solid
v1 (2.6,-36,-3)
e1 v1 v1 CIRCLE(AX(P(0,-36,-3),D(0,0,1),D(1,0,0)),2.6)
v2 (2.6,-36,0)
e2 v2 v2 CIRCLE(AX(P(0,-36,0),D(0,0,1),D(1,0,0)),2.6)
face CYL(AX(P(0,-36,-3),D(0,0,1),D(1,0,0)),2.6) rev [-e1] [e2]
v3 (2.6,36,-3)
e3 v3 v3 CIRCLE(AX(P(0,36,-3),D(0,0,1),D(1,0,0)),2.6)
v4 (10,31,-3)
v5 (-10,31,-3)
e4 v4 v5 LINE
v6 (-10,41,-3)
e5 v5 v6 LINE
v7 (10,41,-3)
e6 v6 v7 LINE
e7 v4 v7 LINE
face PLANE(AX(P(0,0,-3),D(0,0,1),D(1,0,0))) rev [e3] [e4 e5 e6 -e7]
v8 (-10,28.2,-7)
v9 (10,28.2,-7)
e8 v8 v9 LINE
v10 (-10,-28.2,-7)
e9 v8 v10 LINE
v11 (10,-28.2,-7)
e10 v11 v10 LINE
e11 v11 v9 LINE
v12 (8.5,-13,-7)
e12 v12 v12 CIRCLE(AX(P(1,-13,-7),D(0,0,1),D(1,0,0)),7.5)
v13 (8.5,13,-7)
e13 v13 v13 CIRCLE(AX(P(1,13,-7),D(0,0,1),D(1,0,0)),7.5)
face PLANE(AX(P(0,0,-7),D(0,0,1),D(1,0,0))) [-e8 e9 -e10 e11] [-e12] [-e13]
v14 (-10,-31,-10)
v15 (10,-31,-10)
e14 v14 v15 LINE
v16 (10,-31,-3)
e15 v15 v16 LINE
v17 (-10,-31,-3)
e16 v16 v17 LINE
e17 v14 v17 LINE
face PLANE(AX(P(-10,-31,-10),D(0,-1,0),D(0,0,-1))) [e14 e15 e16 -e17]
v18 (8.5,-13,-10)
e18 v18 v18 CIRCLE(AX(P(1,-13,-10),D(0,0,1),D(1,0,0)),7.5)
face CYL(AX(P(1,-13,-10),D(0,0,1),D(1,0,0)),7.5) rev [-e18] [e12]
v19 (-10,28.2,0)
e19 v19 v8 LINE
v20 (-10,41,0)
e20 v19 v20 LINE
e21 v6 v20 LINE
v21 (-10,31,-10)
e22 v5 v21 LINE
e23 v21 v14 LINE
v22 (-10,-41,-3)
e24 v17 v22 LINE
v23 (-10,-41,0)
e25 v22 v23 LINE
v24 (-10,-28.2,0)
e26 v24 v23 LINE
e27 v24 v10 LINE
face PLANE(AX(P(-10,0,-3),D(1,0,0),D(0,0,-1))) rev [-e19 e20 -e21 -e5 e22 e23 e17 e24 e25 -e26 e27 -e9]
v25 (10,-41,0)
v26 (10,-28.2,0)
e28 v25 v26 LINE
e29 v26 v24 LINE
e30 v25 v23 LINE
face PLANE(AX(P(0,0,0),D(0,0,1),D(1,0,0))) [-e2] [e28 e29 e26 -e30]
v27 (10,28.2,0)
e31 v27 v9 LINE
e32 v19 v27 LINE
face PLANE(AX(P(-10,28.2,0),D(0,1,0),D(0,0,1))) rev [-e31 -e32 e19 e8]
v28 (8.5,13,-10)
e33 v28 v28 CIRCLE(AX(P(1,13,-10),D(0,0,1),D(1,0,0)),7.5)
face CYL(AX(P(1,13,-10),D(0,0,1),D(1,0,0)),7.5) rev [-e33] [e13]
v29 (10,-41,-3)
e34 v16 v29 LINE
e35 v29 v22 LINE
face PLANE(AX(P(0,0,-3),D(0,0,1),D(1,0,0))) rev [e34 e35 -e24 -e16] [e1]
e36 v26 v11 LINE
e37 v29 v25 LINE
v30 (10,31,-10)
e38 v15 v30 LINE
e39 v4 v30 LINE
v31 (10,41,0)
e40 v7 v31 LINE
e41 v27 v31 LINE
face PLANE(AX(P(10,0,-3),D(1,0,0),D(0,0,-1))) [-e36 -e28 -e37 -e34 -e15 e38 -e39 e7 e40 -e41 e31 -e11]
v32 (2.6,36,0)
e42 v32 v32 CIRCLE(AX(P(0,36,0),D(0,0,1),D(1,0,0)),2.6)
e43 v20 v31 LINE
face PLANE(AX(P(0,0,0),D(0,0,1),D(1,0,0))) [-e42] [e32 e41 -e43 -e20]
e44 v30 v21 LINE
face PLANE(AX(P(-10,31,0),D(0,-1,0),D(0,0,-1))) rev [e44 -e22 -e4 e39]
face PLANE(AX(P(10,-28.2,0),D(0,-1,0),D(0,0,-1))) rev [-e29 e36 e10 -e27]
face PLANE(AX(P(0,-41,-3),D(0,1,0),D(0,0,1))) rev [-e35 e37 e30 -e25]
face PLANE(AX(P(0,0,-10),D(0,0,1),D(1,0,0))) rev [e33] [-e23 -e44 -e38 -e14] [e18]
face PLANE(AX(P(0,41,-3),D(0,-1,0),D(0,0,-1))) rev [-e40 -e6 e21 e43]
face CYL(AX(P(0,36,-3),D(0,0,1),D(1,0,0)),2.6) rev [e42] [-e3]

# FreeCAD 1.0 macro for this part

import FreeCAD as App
import Part
import Sketcher

V = App.Vector

doc = App.newDocument("Part")
body = doc.addObject("PartDesign::Body", "Body")

# Sketch on XY plane
sketch1 = body.newObject("Sketcher::SketchObject", "Sketch")
sketch1.AttachmentSupport = (doc.getObject("XY_Plane"), [""])
sketch1.MapMode = "FlatFace"
sketch1.addGeometry([
    Part.LineSegment(V(-10, 41, 0), V(-10, 31, 0)),  # 0
    Part.LineSegment(V(-10, 31, 0), V(10, 31, 0)),  # 1
    Part.LineSegment(V(10, 31, 0), V(10, 41, 0)),  # 2
    Part.LineSegment(V(10, 41, 0), V(-10, 41, 0)),  # 3
    Part.Circle(V(0, 36, 0), V(0, 0, 1), 2.6),  # 4
], False)
sketch1.addConstraint([
    Sketcher.Constraint("Coincident", 0, 2, 1, 1),
    Sketcher.Constraint("Coincident", 1, 2, 2, 1),
    Sketcher.Constraint("Coincident", 2, 2, 3, 1),
    Sketcher.Constraint("Coincident", 3, 2, 0, 1),
    Sketcher.Constraint("Vertical", 0),
    Sketcher.Constraint("Horizontal", 1),
    Sketcher.Constraint("Vertical", 2),
    Sketcher.Constraint("Horizontal", 3),
    Sketcher.Constraint("PointOnObject", 4, 3, -2),
    Sketcher.Constraint("Diameter", 4, 5.2),
    Sketcher.Constraint("DistanceX", 1, 1, 1, 2, 20.0),
    Sketcher.Constraint("DistanceY", 0, 2, 0, 1, 10.0),
    Sketcher.Constraint("DistanceY", -1, 1, 4, 3, 36.0),
    Sketcher.Constraint("DistanceX", 0, 2, -1, 1, 10.0),
    Sketcher.Constraint("DistanceY", -1, 1, 0, 2, 31.0),
])
pad1 = body.newObject("PartDesign::Pad", "Pad")
pad1.Profile = sketch1
pad1.Length = 3
pad1.Reversed = True
body2 = doc.addObject("PartDesign::Body", "Body001")

# Sketch on XY plane
sketch2 = body2.newObject("Sketcher::SketchObject", "Sketch001")
sketch2.AttachmentSupport = (doc.getObject("XY_Plane001"), [""])
sketch2.MapMode = "FlatFace"
sketch2.addGeometry([
    Part.LineSegment(V(-10, -31, 0), V(-10, -41, 0)),  # 0
    Part.LineSegment(V(-10, -41, 0), V(10, -41, 0)),  # 1
    Part.LineSegment(V(10, -41, 0), V(10, -31, 0)),  # 2
    Part.LineSegment(V(10, -31, 0), V(-10, -31, 0)),  # 3
    Part.Circle(V(0, -36, 0), V(0, 0, 1), 2.6),  # 4
], False)
sketch2.addConstraint([
    Sketcher.Constraint("Coincident", 0, 2, 1, 1),
    Sketcher.Constraint("Coincident", 1, 2, 2, 1),
    Sketcher.Constraint("Coincident", 2, 2, 3, 1),
    Sketcher.Constraint("Coincident", 3, 2, 0, 1),
    Sketcher.Constraint("Vertical", 0),
    Sketcher.Constraint("Horizontal", 1),
    Sketcher.Constraint("Vertical", 2),
    Sketcher.Constraint("Horizontal", 3),
    Sketcher.Constraint("PointOnObject", 4, 3, -2),
    Sketcher.Constraint("Diameter", 4, 5.2),
    Sketcher.Constraint("DistanceX", 1, 1, 1, 2, 20.0),
    Sketcher.Constraint("DistanceY", 0, 2, 0, 1, 10.0),
    Sketcher.Constraint("DistanceY", 4, 3, -1, 1, 36.0),
    Sketcher.Constraint("DistanceX", 0, 2, -1, 1, 10.0),
    Sketcher.Constraint("DistanceY", 0, 2, -1, 1, 41.0),
])
pad2 = body2.newObject("PartDesign::Pad", "Pad001")
pad2.Profile = sketch2
pad2.Length = 3
pad2.Reversed = True
body3 = doc.addObject("PartDesign::Body", "Body002")

# Sketch on XY plane
sketch3 = body3.newObject("Sketcher::SketchObject", "Sketch002")
sketch3.AttachmentSupport = (doc.getObject("XY_Plane002"), [""])
sketch3.MapMode = "FlatFace"
sketch3.AttachmentOffset = App.Placement(V(0, 0, -7), App.Rotation())
sketch3.addGeometry([
    Part.LineSegment(V(-10, 31, 0), V(-10, -31, 0)),  # 0
    Part.LineSegment(V(-10, -31, 0), V(10, -31, 0)),  # 1
    Part.LineSegment(V(10, -31, 0), V(10, 31, 0)),  # 2
    Part.LineSegment(V(10, 31, 0), V(-10, 31, 0)),  # 3
    Part.Circle(V(1, -13, 0), V(0, 0, 1), 8),  # 4
    Part.Circle(V(1, 13, 0), V(0, 0, 1), 8),  # 5
], False)
sketch3.addConstraint([
    Sketcher.Constraint("Coincident", 0, 2, 1, 1),
    Sketcher.Constraint("Coincident", 1, 2, 2, 1),
    Sketcher.Constraint("Coincident", 2, 2, 3, 1),
    Sketcher.Constraint("Coincident", 3, 2, 0, 1),
    Sketcher.Constraint("Vertical", 0),
    Sketcher.Constraint("Horizontal", 1),
    Sketcher.Constraint("Vertical", 2),
    Sketcher.Constraint("Horizontal", 3),
    Sketcher.Constraint("Equal", 4, 5),
    Sketcher.Constraint("Symmetric", 0, 2, 2, 2, -1, 1),
    Sketcher.Constraint("Symmetric", 4, 3, 5, 3, -1),
    Sketcher.Constraint("Diameter", 4, 15.0),
    Sketcher.Constraint("DistanceX", 1, 1, 1, 2, 20.0),
    Sketcher.Constraint("DistanceY", 0, 2, 0, 1, 62.0),
    Sketcher.Constraint("DistanceX", -1, 1, 4, 3, 1.0),
    Sketcher.Constraint("DistanceY", 4, 3, -1, 1, 13.0),
])
pad3 = body3.newObject("PartDesign::Pad", "Pad002")
pad3.Profile = sketch3
pad3.Length = 3
pad3.Reversed = True
body.AllowCompound = True
doc.recompute()

boolean = body.newObject("PartDesign::Boolean", "Boolean")
boolean.Type = "Fuse"
boolean.addObjects([body2])
doc.recompute()

boolean2 = body.newObject("PartDesign::Boolean", "Boolean001")
boolean2.Type = "Fuse"
boolean2.addObjects([body3])

# Sketch on XY plane
sketch4 = body.newObject("Sketcher::SketchObject", "Sketch003")
sketch4.AttachmentSupport = (doc.getObject("XY_Plane"), [""])
sketch4.MapMode = "FlatFace"
sketch4.AttachmentOffset = App.Placement(V(0, 0, -7), App.Rotation())
sketch4.addGeometry([
    Part.LineSegment(V(-10, 31, 0), V(-10, 28.2, 0)),  # 0
    Part.LineSegment(V(-10, 28.2, 0), V(10, 28.2, 0)),  # 1
    Part.LineSegment(V(10, 28.2, 0), V(10, 31, 0)),  # 2
    Part.LineSegment(V(10, 31, 0), V(-10, 31, 0)),  # 3
    Part.LineSegment(V(-10, -28.2, 0), V(-10, -31, 0)),  # 4
    Part.LineSegment(V(-10, -31, 0), V(10, -31, 0)),  # 5
    Part.LineSegment(V(10, -31, 0), V(10, -28.2, 0)),  # 6
    Part.LineSegment(V(10, -28.2, 0), V(-10, -28.2, 0)),  # 7
], False)
sketch4.addConstraint([
    Sketcher.Constraint("Coincident", 0, 2, 1, 1),
    Sketcher.Constraint("Coincident", 1, 2, 2, 1),
    Sketcher.Constraint("Coincident", 2, 2, 3, 1),
    Sketcher.Constraint("Coincident", 3, 2, 0, 1),
    Sketcher.Constraint("Coincident", 4, 2, 5, 1),
    Sketcher.Constraint("Coincident", 5, 2, 6, 1),
    Sketcher.Constraint("Coincident", 6, 2, 7, 1),
    Sketcher.Constraint("Coincident", 7, 2, 4, 1),
    Sketcher.Constraint("Vertical", 0),
    Sketcher.Constraint("Horizontal", 1),
    Sketcher.Constraint("Vertical", 2),
    Sketcher.Constraint("Horizontal", 3),
    Sketcher.Constraint("Vertical", 4),
    Sketcher.Constraint("Horizontal", 5),
    Sketcher.Constraint("Vertical", 6),
    Sketcher.Constraint("Horizontal", 7),
    Sketcher.Constraint("Symmetric", 2, 2, 4, 2, -1, 1),
    Sketcher.Constraint("Symmetric", 0, 2, 6, 2, -1, 1),
    Sketcher.Constraint("Vertical", 3, 2, 4, 2),
    Sketcher.Constraint("DistanceX", 1, 1, 1, 2, 20.0),
    Sketcher.Constraint("DistanceY", 0, 2, 0, 1, 2.8),
    Sketcher.Constraint("DistanceY", -1, 1, 2, 2, 31.0),
])
pad4 = body.newObject("PartDesign::Pad", "Pad003")
pad4.Profile = sketch4
pad4.Length = 7

doc.recompute()
